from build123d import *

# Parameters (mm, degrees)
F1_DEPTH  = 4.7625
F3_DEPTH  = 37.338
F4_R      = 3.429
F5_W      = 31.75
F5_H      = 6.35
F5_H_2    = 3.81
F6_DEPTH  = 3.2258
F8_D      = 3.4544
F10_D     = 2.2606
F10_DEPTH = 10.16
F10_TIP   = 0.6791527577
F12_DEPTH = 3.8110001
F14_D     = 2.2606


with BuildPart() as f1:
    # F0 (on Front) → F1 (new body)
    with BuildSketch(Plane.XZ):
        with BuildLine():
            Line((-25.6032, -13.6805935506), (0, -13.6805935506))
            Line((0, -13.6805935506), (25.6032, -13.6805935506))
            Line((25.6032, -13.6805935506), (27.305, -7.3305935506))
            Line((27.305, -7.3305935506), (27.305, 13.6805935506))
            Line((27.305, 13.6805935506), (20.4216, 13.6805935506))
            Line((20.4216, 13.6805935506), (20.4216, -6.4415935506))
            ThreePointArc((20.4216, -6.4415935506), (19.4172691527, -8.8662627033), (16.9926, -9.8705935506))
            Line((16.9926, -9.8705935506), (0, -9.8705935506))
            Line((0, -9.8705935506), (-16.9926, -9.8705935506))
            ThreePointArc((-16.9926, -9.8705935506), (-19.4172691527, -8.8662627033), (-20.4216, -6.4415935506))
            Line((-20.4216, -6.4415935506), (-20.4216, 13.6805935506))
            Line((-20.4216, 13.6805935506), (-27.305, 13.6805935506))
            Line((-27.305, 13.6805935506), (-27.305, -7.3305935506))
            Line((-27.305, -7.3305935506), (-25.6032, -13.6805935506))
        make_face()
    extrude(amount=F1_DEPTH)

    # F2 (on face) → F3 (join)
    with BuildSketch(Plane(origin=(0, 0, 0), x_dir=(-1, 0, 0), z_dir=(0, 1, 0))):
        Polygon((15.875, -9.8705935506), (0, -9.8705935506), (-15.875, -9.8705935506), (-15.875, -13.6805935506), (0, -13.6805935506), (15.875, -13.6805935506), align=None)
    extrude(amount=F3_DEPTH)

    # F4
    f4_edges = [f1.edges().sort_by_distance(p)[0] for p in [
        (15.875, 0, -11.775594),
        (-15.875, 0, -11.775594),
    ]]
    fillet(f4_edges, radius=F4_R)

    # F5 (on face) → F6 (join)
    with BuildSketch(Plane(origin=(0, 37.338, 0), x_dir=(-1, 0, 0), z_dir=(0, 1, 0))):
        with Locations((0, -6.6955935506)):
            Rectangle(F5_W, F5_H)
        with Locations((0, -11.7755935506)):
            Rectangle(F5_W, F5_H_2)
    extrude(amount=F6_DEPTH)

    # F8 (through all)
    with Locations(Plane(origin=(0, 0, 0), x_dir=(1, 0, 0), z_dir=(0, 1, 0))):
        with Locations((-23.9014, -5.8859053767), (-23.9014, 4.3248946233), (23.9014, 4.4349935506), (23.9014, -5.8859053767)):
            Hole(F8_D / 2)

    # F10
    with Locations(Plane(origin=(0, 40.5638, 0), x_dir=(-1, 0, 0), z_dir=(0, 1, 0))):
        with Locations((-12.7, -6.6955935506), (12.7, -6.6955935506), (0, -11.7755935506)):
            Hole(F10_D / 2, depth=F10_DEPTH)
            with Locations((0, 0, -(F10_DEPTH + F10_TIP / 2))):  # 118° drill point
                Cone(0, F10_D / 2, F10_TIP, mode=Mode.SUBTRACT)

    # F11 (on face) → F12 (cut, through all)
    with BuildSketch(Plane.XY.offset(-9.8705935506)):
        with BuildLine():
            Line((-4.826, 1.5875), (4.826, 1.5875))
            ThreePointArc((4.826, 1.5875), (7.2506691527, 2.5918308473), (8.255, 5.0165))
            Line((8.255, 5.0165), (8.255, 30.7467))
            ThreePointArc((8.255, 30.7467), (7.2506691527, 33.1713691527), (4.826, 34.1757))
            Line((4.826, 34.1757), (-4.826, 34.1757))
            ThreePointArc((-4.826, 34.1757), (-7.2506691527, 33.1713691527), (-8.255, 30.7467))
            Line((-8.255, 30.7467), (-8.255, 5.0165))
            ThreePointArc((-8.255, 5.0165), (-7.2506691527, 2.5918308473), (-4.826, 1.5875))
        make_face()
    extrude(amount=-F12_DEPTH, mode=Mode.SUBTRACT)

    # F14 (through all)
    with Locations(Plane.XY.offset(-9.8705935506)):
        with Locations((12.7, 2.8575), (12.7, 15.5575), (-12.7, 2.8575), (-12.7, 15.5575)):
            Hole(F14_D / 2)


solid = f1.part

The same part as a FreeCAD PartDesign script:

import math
import FreeCAD as App
import Part
import Sketcher
Q = App.Units.Quantity


def edges_at(feature, points):
    """Names of the edges that pass closest to the given points."""
    edges = feature.Shape.Edges
    near = lambda p: min(range(len(edges)), key=lambda i: edges[i].distToShape(Part.Vertex(*p))[0])
    return sorted({f"Edge{near(p) + 1}" for p in points})


def add_polygon(sketch, points):
    """Adds a closed chain of lines whose ends are joined by coincident constraints."""
    first, n = sketch.GeometryCount, len(points)
    for a, b in zip(points, points[1:] + points[:1]):
        sketch.addGeometry(Part.LineSegment(App.Vector(*a, 0), App.Vector(*b, 0)), False)
    for i in range(n):
        sketch.addConstraint(Sketcher.Constraint("Coincident", first + i, 2, first + (i + 1) % n, 1))

doc = App.newDocument("Part")
body = doc.addObject("PartDesign::Body", "Body")

# Sketch on XZ plane
sketch1 = body.newObject("Sketcher::SketchObject", "Sketch")
sketch1.AttachmentSupport = (doc.getObject("XZ_Plane"), [""])
sketch1.MapMode = "FlatFace"
sketch1.addGeometry([
    Part.LineSegment(App.Vector(-25.6, -13.7, 0), App.Vector(25.6, -13.7, 0)),  # 0
    Part.LineSegment(App.Vector(25.6, -13.7, 0), App.Vector(27.3, -7.3, 0)),  # 1
    Part.LineSegment(App.Vector(27.3, -7.3, 0), App.Vector(27.3, 13.7, 0)),  # 2
    Part.LineSegment(App.Vector(27.3, 13.7, 0), App.Vector(20.4, 13.7, 0)),  # 3
    Part.LineSegment(App.Vector(20.4, 13.7, 0), App.Vector(20.4, -6.4, 0)),  # 4
    Part.ArcOfCircle(Part.Circle(App.Vector(17, -6.4, 0), App.Vector(0, 0, 1), 3.4), math.radians(-90), math.radians(0)),  # 5
    Part.LineSegment(App.Vector(17, -9.9, 0), App.Vector(-17, -9.9, 0)),  # 6
    Part.ArcOfCircle(Part.Circle(App.Vector(-17, -6.4, 0), App.Vector(0, 0, 1), 3.4), math.radians(180), math.radians(270)),  # 7
    Part.LineSegment(App.Vector(-20.4, -6.4, 0), App.Vector(-20.4, 13.7, 0)),  # 8
    Part.LineSegment(App.Vector(-20.4, 13.7, 0), App.Vector(-27.3, 13.7, 0)),  # 9
    Part.LineSegment(App.Vector(-27.3, 13.7, 0), App.Vector(-27.3, -7.3, 0)),  # 10
    Part.LineSegment(App.Vector(-27.3, -7.3, 0), App.Vector(-25.6, -13.7, 0)),  # 11
], False)
sketch1.addConstraint([
    Sketcher.Constraint("Coincident", 0, 2, 1, 1),
    Sketcher.Constraint("Coincident", 1, 2, 2, 1),
    Sketcher.Constraint("Coincident", 2, 2, 3, 1),
    Sketcher.Constraint("Coincident", 3, 2, 4, 1),
    Sketcher.Constraint("Tangent", 4, 2, 5, 2),
    Sketcher.Constraint("Tangent", 5, 1, 6, 1),
    Sketcher.Constraint("Tangent", 6, 2, 7, 2),
    Sketcher.Constraint("Tangent", 7, 1, 8, 1),
    Sketcher.Constraint("Coincident", 8, 2, 9, 1),
    Sketcher.Constraint("Coincident", 9, 2, 10, 1),
    Sketcher.Constraint("Coincident", 10, 2, 11, 1),
    Sketcher.Constraint("Coincident", 11, 2, 0, 1),
    Sketcher.Constraint("Horizontal", 0),
    Sketcher.Constraint("Vertical", 2),
    Sketcher.Constraint("Horizontal", 3),
    Sketcher.Constraint("Vertical", 4),
    Sketcher.Constraint("Horizontal", 6),
    Sketcher.Constraint("Vertical", 8),
    Sketcher.Constraint("Horizontal", 9),
    Sketcher.Constraint("Vertical", 10),
    Sketcher.Constraint("Equal", 5, 7),
    Sketcher.Constraint("Symmetric", 3, 2, 8, 2, -2),
    Sketcher.Constraint("Symmetric", 1, 2, 10, 2, -2),
    Sketcher.Constraint("Equal", 1, 11),
    Sketcher.Constraint("Radius", 5, Q("0.135 in")),
    Sketcher.Constraint("DistanceY", 5, 1, 1, 2, Q("0.1 in")),
    Sketcher.Constraint("DistanceX", 0, 1, 0, 2, Q("2.016 in")),
    Sketcher.Constraint("DistanceX", 3, 2, 3, 1, Q("0.271 in")),
    Sketcher.Constraint("DistanceX", 6, 2, 6, 1, Q("1.338 in")),
    Sketcher.Constraint("DistanceY", 0, 2, 1, 2, Q("0.25 in")),
    Sketcher.Constraint("DistanceY", 2, 1, 2, 2, Q("21.011187 mm")),
    Sketcher.Constraint("DistanceY", 5, 3, -1, 1, Q("6.441594 mm")),
])
pad1 = body.newObject("PartDesign::Pad", "Pad")
pad1.Profile = sketch1
pad1.Length = Q("0.1875 in")

# Sketch on XZ plane
sketch2 = body.newObject("Sketcher::SketchObject", "Sketch001")
sketch2.AttachmentSupport = (doc.getObject("XZ_Plane"), [""])
sketch2.MapMode = "FlatFace"
add_polygon(sketch2, [(-15.9, -9.9), (15.9, -9.9), (15.9, -13.7), (-15.9, -13.7)])  # lines 0-3
sketch2.addConstraint([
    Sketcher.Constraint("Horizontal", 0),
    Sketcher.Constraint("Vertical", 1),
    Sketcher.Constraint("Horizontal", 2),
    Sketcher.Constraint("Vertical", 3),
    Sketcher.Constraint("DistanceX", 0, 1, 0, 2, Q("1.25 in")),
    Sketcher.Constraint("DistanceY", 1, 2, 1, 1, Q("0.15 in")),
    Sketcher.Constraint("DistanceX", -1, 1, 0, 2, Q("0.625 in")),
    Sketcher.Constraint("DistanceY", 0, 2, -1, 1, Q("9.870594 mm")),
])
pad2 = body.newObject("PartDesign::Pad", "Pad001")
pad2.Profile = sketch2
pad2.Length = Q("1.47 in")
pad2.Reversed = True
doc.recompute()

fillet = body.newObject("PartDesign::Fillet", "Fillet")
fillet.Base = (pad2, edges_at(pad2, [(15.875, 0, -11.776), (-15.875, 0, -11.776)]))
fillet.Radius = Q("0.135 in")

# Sketch on XZ plane
sketch3 = body.newObject("Sketcher::SketchObject", "Sketch002")
sketch3.AttachmentSupport = (doc.getObject("XZ_Plane"), [""])
sketch3.MapMode = "FlatFace"
sketch3.AttachmentOffset = App.Placement(App.Vector(0, 0, -1.47 * 25.4), App.Rotation())
add_polygon(sketch3, [(16, -4), (16, -14), (-16, -14), (-16, -4)])  # lines 0-3
sketch3.addConstraint([
    Sketcher.Constraint("Vertical", 0),
    Sketcher.Constraint("Horizontal", 1),
    Sketcher.Constraint("Vertical", 2),
    Sketcher.Constraint("Horizontal", 3),
    Sketcher.Constraint("DistanceY", 0, 2, 0, 1, Q("0.4 in")),
    Sketcher.Constraint("DistanceX", 1, 2, 1, 1, Q("1.25 in")),
    Sketcher.Constraint("DistanceX", -1, 1, 0, 2, Q("0.625 in")),
    Sketcher.Constraint("DistanceY", 0, 2, -1, 1, Q("13.680594 mm")),
])
pad3 = body.newObject("PartDesign::Pad", "Pad002")
pad3.Profile = sketch3
pad3.Length = Q("0.127 in")
pad3.Reversed = True

# Sketch on XZ plane
sketch4 = body.newObject("Sketcher::SketchObject", "Sketch003")
sketch4.AttachmentSupport = (doc.getObject("XZ_Plane"), [""])
sketch4.MapMode = "FlatFace"
sketch4.addGeometry([
    Part.Circle(App.Vector(-23.9, 5.9, 0), App.Vector(0, 0, 1), 1.7),
    Part.Circle(App.Vector(-23.9, -4.3, 0), App.Vector(0, 0, 1), 1.7),
    Part.Circle(App.Vector(23.9, -4.4, 0), App.Vector(0, 0, 1), 1.7),
    Part.Circle(App.Vector(23.9, 5.9, 0), App.Vector(0, 0, 1), 1.7),
], False)
sketch4.addConstraint([
    Sketcher.Constraint("Equal", 0, 1),
    Sketcher.Constraint("Equal", 1, 2),
    Sketcher.Constraint("Equal", 2, 3),
    Sketcher.Constraint("Symmetric", 0, 3, 3, 3, -2),
    Sketcher.Constraint("Vertical", 0, 3, 1, 3),
    Sketcher.Constraint("Vertical", 2, 3, 3, 3),
    Sketcher.Constraint("Diameter", 0, Q("0.136 in")),
    Sketcher.Constraint("DistanceX", 0, 3, -1, 1, Q("0.941 in")),
    Sketcher.Constraint("DistanceY", 1, 3, 0, 3, Q("0.402 in")),
    Sketcher.Constraint("DistanceY", 2, 3, 1, 3, Q("0.110099 mm")),
    Sketcher.Constraint("DistanceY", -1, 1, 0, 3, Q("5.885905 mm")),
])
doc.recompute()
hole = body.newObject("PartDesign::Hole", "Hole")
hole.Profile = sketch4
hole.ThreadType = "None"
hole.Diameter = Q("0.136 in")
hole.DepthType = "ThroughAll"
hole.Reversed = True

# Sketch on XZ plane
sketch5 = body.newObject("Sketcher::SketchObject", "Sketch004")
sketch5.AttachmentSupport = (doc.getObject("XZ_Plane"), [""])
sketch5.MapMode = "FlatFace"
sketch5.AttachmentOffset = App.Placement(App.Vector(0, 0, -1.597 * 25.4), App.Rotation())
sketch5.addGeometry([
    Part.Circle(App.Vector(12.7, -6.7, 0), App.Vector(0, 0, 1), 1.1),
    Part.Circle(App.Vector(-12.7, -6.7, 0), App.Vector(0, 0, 1), 1.1),
    Part.Circle(App.Vector(0, -11.8, 0), App.Vector(0, 0, 1), 1.1),
], False)
sketch5.addConstraint([
    Sketcher.Constraint("Equal", 0, 1),
    Sketcher.Constraint("Equal", 1, 2),
    Sketcher.Constraint("Symmetric", 0, 3, 1, 3, -2),
    Sketcher.Constraint("PointOnObject", 2, 3, -2),
    Sketcher.Constraint("Diameter", 0, Q("0.089 in")),
    Sketcher.Constraint("DistanceX", 1, 3, 0, 3, Q("1 in")),
    Sketcher.Constraint("DistanceY", 2, 3, 0, 3, Q("0.2 in")),
    Sketcher.Constraint("DistanceY", 0, 3, -1, 1, Q("6.695594 mm")),
])
doc.recompute()
hole2 = body.newObject("PartDesign::Hole", "Hole001")
hole2.Profile = sketch5
hole2.ThreadType = "None"
hole2.Diameter = Q("0.089 in")
hole2.DepthType = "Dimension"
hole2.Depth = Q("0.4 in")
hole2.DrillPoint = "Angled"
hole2.DrillPointAngle = 118
hole2.Reversed = True

# Sketch on XY plane
sketch6 = body.newObject("Sketcher::SketchObject", "Sketch005")
sketch6.AttachmentSupport = (doc.getObject("XY_Plane"), [""])
sketch6.MapMode = "FlatFace"
sketch6.AttachmentOffset = App.Placement(App.Vector(0, 0, -9.870594), App.Rotation())
sketch6.addGeometry([
    Part.LineSegment(App.Vector(-4.8, 1.6, 0), App.Vector(4.8, 1.6, 0)),  # 0
    Part.ArcOfCircle(Part.Circle(App.Vector(4.8, 5, 0), App.Vector(0, 0, 1), 3.4), math.radians(-90), math.radians(0)),  # 1
    Part.LineSegment(App.Vector(8.3, 5, 0), App.Vector(8.3, 30.7, 0)),  # 2
    Part.ArcOfCircle(Part.Circle(App.Vector(4.8, 30.7, 0), App.Vector(0, 0, 1), 3.4), math.radians(0), math.radians(90)),  # 3
    Part.LineSegment(App.Vector(4.8, 34.2, 0), App.Vector(-4.8, 34.2, 0)),  # 4
    Part.ArcOfCircle(Part.Circle(App.Vector(-4.8, 30.7, 0), App.Vector(0, 0, 1), 3.4), math.radians(90), math.radians(180)),  # 5
    Part.LineSegment(App.Vector(-8.3, 30.7, 0), App.Vector(-8.3, 5, 0)),  # 6
    Part.ArcOfCircle(Part.Circle(App.Vector(-4.8, 5, 0), App.Vector(0, 0, 1), 3.4), math.radians(180), math.radians(270)),  # 7
], False)
sketch6.addConstraint([
    Sketcher.Constraint("Tangent", 0, 2, 1, 1),
    Sketcher.Constraint("Tangent", 1, 2, 2, 1),
    Sketcher.Constraint("Tangent", 2, 2, 3, 1),
    Sketcher.Constraint("Tangent", 3, 2, 4, 1),
    Sketcher.Constraint("Tangent", 4, 2, 5, 1),
    Sketcher.Constraint("Tangent", 5, 2, 6, 1),
    Sketcher.Constraint("Tangent", 6, 2, 7, 1),
    Sketcher.Constraint("Tangent", 7, 2, 0, 1),
    Sketcher.Constraint("Horizontal", 0),
    Sketcher.Constraint("Vertical", 2),
    Sketcher.Constraint("Horizontal", 4),
    Sketcher.Constraint("Vertical", 6),
    Sketcher.Constraint("Equal", 1, 3),
    Sketcher.Constraint("Equal", 3, 5),
    Sketcher.Constraint("Equal", 5, 7),
    Sketcher.Constraint("Radius", 1, Q("0.135 in")),
    Sketcher.Constraint("DistanceX", 0, 1, 0, 2, Q("0.38 in")),
    Sketcher.Constraint("DistanceY", 2, 1, 2, 2, Q("1.013 in")),
    Sketcher.Constraint("DistanceX", -1, 1, 1, 3, Q("0.19 in")),
    Sketcher.Constraint("DistanceY", -1, 1, 0, 2, Q("0.0625 in")),
])
pocket1 = body.newObject("PartDesign::Pocket", "Pocket")
pocket1.Profile = sketch6
pocket1.Type = "ThroughAll"

# Sketch on XY plane
sketch7 = body.newObject("Sketcher::SketchObject", "Sketch006")
sketch7.AttachmentSupport = (doc.getObject("XY_Plane"), [""])
sketch7.MapMode = "FlatFace"
sketch7.AttachmentOffset = App.Placement(App.Vector(0, 0, -9.870594), App.Rotation())
sketch7.addGeometry([
    Part.Circle(App.Vector(12.7, 2.9, 0), App.Vector(0, 0, 1), 1.1),
    Part.Circle(App.Vector(12.7, 15.6, 0), App.Vector(0, 0, 1), 1.1),
    Part.Circle(App.Vector(-12.7, 2.9, 0), App.Vector(0, 0, 1), 1.1),
    Part.Circle(App.Vector(-12.7, 15.6, 0), App.Vector(0, 0, 1), 1.1),
], False)
sketch7.addConstraint([
    Sketcher.Constraint("Equal", 0, 1),
    Sketcher.Constraint("Equal", 1, 2),
    Sketcher.Constraint("Equal", 2, 3),
    Sketcher.Constraint("Symmetric", 0, 3, 2, 3, -2),
    Sketcher.Constraint("Symmetric", 1, 3, 3, 3, -2),
    Sketcher.Constraint("Vertical", 0, 3, 1, 3),
    Sketcher.Constraint("Diameter", 0, Q("0.089 in")),
    Sketcher.Constraint("DistanceX", 2, 3, 0, 3, Q("1 in")),
    Sketcher.Constraint("DistanceY", 0, 3, 1, 3, Q("0.5 in")),
    Sketcher.Constraint("DistanceY", -1, 1, 0, 3, Q("0.1125 in")),
])
doc.recompute()
hole3 = body.newObject("PartDesign::Hole", "Hole002")
hole3.Profile = sketch7
hole3.ThreadType = "None"
hole3.Diameter = Q("0.089 in")
hole3.DepthType = "ThroughAll"

doc.recompute()
